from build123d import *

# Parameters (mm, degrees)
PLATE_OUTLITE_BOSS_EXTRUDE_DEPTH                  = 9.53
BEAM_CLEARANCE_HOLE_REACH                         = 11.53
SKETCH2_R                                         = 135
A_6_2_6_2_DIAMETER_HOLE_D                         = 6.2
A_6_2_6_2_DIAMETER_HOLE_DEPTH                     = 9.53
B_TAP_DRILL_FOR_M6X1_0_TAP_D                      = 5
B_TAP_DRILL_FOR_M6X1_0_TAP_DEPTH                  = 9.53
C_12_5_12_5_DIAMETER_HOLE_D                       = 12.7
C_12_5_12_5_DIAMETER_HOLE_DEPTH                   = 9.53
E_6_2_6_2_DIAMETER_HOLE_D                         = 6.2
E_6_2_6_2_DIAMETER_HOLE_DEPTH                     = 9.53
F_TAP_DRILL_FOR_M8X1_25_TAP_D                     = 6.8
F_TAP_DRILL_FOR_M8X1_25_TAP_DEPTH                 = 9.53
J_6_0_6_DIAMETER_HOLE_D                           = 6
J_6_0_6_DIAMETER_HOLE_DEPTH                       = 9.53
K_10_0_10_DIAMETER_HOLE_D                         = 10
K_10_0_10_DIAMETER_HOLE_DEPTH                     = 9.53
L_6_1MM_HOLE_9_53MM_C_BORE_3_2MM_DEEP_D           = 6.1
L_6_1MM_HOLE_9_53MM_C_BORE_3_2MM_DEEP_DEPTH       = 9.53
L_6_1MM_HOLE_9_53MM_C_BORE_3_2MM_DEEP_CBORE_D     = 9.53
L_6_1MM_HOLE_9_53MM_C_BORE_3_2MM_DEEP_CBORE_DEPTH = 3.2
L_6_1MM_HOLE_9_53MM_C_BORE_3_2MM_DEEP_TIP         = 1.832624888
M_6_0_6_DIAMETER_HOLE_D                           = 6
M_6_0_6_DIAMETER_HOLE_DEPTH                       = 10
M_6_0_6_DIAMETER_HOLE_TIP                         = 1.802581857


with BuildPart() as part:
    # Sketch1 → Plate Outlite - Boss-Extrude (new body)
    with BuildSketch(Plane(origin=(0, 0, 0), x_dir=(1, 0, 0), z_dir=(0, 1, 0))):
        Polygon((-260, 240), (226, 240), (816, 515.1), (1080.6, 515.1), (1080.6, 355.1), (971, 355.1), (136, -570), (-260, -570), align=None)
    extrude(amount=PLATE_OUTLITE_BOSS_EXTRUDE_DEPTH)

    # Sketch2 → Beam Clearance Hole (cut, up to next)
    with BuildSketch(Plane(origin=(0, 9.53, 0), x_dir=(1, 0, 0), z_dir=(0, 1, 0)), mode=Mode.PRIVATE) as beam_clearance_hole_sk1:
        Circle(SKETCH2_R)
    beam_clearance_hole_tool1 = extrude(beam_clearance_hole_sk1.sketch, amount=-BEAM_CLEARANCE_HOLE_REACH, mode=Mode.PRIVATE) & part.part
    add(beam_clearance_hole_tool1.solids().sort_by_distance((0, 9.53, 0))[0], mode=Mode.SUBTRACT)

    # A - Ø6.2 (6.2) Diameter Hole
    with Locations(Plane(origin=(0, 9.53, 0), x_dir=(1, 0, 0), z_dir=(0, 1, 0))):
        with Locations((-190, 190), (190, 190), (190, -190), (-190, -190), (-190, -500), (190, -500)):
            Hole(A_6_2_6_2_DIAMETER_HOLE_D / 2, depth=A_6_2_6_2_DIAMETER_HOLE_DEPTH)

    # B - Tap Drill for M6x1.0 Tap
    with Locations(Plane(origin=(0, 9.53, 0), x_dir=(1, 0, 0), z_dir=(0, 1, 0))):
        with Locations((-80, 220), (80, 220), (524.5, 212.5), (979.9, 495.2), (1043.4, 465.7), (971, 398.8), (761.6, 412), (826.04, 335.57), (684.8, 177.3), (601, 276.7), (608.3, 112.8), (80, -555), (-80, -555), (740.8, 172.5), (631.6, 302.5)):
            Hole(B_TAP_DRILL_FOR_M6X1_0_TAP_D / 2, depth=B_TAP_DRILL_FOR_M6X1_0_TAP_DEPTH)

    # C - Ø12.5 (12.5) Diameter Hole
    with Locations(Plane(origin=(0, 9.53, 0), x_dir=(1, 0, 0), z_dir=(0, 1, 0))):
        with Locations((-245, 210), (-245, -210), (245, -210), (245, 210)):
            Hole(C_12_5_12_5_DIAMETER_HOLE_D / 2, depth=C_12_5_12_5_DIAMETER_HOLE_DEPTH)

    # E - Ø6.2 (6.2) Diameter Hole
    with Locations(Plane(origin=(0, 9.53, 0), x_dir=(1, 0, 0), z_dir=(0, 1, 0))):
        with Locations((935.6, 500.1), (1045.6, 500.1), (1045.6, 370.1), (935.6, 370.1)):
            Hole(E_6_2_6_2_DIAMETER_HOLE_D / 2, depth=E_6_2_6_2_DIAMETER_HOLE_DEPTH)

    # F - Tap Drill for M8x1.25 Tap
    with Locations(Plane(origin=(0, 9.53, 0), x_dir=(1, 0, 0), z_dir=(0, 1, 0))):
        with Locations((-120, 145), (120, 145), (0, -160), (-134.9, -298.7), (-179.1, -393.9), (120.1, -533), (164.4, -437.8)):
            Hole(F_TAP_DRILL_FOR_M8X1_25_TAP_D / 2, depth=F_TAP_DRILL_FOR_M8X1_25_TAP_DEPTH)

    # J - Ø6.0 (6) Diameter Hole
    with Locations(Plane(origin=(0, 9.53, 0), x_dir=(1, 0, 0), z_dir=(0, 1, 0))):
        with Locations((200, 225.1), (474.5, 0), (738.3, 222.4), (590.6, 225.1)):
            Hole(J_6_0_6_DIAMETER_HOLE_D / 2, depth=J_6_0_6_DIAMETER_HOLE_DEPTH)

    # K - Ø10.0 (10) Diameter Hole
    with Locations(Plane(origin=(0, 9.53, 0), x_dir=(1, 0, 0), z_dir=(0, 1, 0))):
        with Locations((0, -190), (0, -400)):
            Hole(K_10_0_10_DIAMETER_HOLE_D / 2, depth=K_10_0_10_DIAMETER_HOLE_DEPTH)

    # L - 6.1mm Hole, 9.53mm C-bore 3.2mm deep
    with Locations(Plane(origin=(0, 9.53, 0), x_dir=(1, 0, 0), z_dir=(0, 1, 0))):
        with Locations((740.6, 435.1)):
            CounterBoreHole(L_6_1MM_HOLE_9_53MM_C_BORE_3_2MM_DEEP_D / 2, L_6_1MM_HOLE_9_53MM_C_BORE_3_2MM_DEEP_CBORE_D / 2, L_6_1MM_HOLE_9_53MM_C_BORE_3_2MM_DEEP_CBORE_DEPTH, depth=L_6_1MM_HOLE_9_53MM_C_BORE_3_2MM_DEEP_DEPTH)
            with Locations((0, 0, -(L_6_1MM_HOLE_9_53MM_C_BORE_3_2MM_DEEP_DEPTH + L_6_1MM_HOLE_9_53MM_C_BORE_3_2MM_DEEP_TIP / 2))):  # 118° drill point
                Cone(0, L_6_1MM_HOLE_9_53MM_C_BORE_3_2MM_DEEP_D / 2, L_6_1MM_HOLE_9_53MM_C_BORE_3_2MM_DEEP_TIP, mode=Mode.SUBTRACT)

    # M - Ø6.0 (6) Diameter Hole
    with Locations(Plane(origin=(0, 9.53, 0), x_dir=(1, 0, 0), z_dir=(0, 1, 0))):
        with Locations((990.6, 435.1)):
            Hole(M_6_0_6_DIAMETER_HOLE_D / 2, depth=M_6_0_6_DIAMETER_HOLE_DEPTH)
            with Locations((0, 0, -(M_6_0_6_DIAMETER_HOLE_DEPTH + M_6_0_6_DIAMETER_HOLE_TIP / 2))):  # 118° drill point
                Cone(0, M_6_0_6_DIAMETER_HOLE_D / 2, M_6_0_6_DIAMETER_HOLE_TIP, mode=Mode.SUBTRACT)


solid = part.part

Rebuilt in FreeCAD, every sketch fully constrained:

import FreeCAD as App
import Part
import Sketcher
from FreeCAD import Vector
Q = App.Units.Quantity

doc = App.newDocument("Part")
body = doc.addObject("PartDesign::Body", "Body")

sketch1 = body.newObject("Sketcher::SketchObject", "Sketch")
sketch1.AttachmentSupport = (doc.getObject("XZ_Plane"), [""])
sketch1.MapMode = "FlatFace"
sketch1.addGeometry([
    Part.LineSegment(Vector(226, -240, 0), Vector(-260, -240, 0)),
    Part.LineSegment(Vector(-260, -240, 0), Vector(-260, 570, 0)),
    Part.LineSegment(Vector(-260, 570, 0), Vector(136, 570, 0)),
    Part.LineSegment(Vector(136, 570, 0), Vector(971, -355.1, 0)),
    Part.LineSegment(Vector(971, -355.1, 0), Vector(1080.6, -355.1, 0)),
    Part.LineSegment(Vector(1080.6, -355.1, 0), Vector(1080.6, -515.1, 0)),
    Part.LineSegment(Vector(1080.6, -515.1, 0), Vector(816, -515.1, 0)),
    Part.LineSegment(Vector(816, -515.1, 0), Vector(226, -240, 0)),
], False)
sketch1.addConstraint([
    Sketcher.Constraint("Coincident", 0, 2, 1, 1),
    Sketcher.Constraint("Coincident", 1, 2, 2, 1),
    Sketcher.Constraint("Coincident", 2, 2, 3, 1),
    Sketcher.Constraint("Coincident", 3, 2, 4, 1),
    Sketcher.Constraint("Coincident", 4, 2, 5, 1),
    Sketcher.Constraint("Coincident", 5, 2, 6, 1),
    Sketcher.Constraint("Coincident", 6, 2, 7, 1),
    Sketcher.Constraint("Coincident", 7, 2, 0, 1),
    Sketcher.Constraint("Horizontal", 0),
    Sketcher.Constraint("Vertical", 1),
    Sketcher.Constraint("Horizontal", 2),
    Sketcher.Constraint("Horizontal", 4),
    Sketcher.Constraint("Vertical", 5),
    Sketcher.Constraint("Horizontal", 6),
    Sketcher.Constraint("DistanceX", 0, 2, 0, 1, Q("486 mm")),
    Sketcher.Constraint("DistanceX", 2, 1, 2, 2, Q("396 mm")),
    Sketcher.Constraint("DistanceY", 1, 1, 1, 2, Q("810 mm")),
    Sketcher.Constraint("DistanceY", 5, 2, 5, 1, Q("160 mm")),
    Sketcher.Constraint("DistanceX", 4, 1, 4, 2, Q("109.6 mm")),
    Sketcher.Constraint("DistanceX", 6, 2, 6, 1, Q("264.6 mm")),
    Sketcher.Constraint("DistanceX", 0, 2, -1, 1, Q("260 mm")),
    Sketcher.Constraint("DistanceY", 0, 2, -1, 1, Q("240 mm")),
    Sketcher.Constraint("DistanceX", -1, 1, 3, 2, Q("971 mm")),
    Sketcher.Constraint("DistanceY", 3, 2, -1, 1, Q("355.1 mm")),
])
pad1 = body.newObject("PartDesign::Pad", "Pad")
pad1.Profile = sketch1
pad1.Length = 9.53
pad1.Reversed = True

sketch2 = body.newObject("Sketcher::SketchObject", "Sketch001")
sketch2.AttachmentSupport = (doc.getObject("XZ_Plane"), [""])
sketch2.MapMode = "FlatFace"
sketch2.AttachmentOffset = App.Placement(Vector(0, 0, -9.53), App.Rotation())
sketch2.addGeometry(Part.Circle(Vector(0, 0, 0), Vector(0, 0, 1), 135), False)
sketch2.addConstraint([
    Sketcher.Constraint("Coincident", 0, 3, -1, 1),
    Sketcher.Constraint("Diameter", 0, Q("270 mm")),
])
pocket1 = body.newObject("PartDesign::Pocket", "Pocket")
pocket1.Profile = sketch2
pocket1.Type = "UpToFirst"
pocket1.Reversed = True

sketch3 = body.newObject("Sketcher::SketchObject", "Sketch002")
sketch3.AttachmentSupport = (doc.getObject("XZ_Plane"), [""])
sketch3.MapMode = "FlatFace"
sketch3.AttachmentOffset = App.Placement(Vector(0, 0, -9.53), App.Rotation())
sketch3.addGeometry([
    Part.Circle(Vector(-190, -190, 0), Vector(0, 0, 1), 3.1),
    Part.Circle(Vector(190, -190, 0), Vector(0, 0, 1), 3.1),
    Part.Circle(Vector(190, 190, 0), Vector(0, 0, 1), 3.1),
    Part.Circle(Vector(-190, 190, 0), Vector(0, 0, 1), 3.1),
    Part.Circle(Vector(-190, 500, 0), Vector(0, 0, 1), 3.1),
    Part.Circle(Vector(190, 500, 0), Vector(0, 0, 1), 3.1),
], False)
sketch3.addConstraint([
    Sketcher.Constraint("Equal", 0, 1),
    Sketcher.Constraint("Equal", 1, 2),
    Sketcher.Constraint("Equal", 2, 3),
    Sketcher.Constraint("Equal", 3, 4),
    Sketcher.Constraint("Equal", 4, 5),
    Sketcher.Constraint("Symmetric", 0, 3, 2, 3, -1, 1),
    Sketcher.Constraint("Symmetric", 1, 3, 3, 3, -1, 1),
    Sketcher.Constraint("Symmetric", 0, 3, 1, 3, -2),
    Sketcher.Constraint("Symmetric", 4, 3, 5, 3, -2),
    Sketcher.Constraint("Vertical", 3, 3, 4, 3),
    Sketcher.Constraint("Diameter", 0, Q("6.2 mm")),
    Sketcher.Constraint("DistanceX", 0, 3, -1, 1, Q("190 mm")),
    Sketcher.Constraint("DistanceY", 0, 3, -1, 1, Q("190 mm")),
    Sketcher.Constraint("DistanceY", -1, 1, 4, 3, Q("500 mm")),
])
doc.recompute()
hole = body.newObject("PartDesign::Hole", "Hole")
hole.Profile = sketch3
hole.ThreadType = "None"
hole.Diameter = 6.2
hole.DepthType = "Dimension"
hole.Depth = 9.53
hole.DrillPoint = "Flat"
hole.Reversed = True

sketch4 = body.newObject("Sketcher::SketchObject", "Sketch003")
sketch4.AttachmentSupport = (doc.getObject("XZ_Plane"), [""])
sketch4.MapMode = "FlatFace"
sketch4.AttachmentOffset = App.Placement(Vector(0, 0, -9.53), App.Rotation())
sketch4.addGeometry([
    Part.Circle(Vector(-80, -220, 0), Vector(0, 0, 1), 2.5),
    Part.Circle(Vector(80, -220, 0), Vector(0, 0, 1), 2.5),
    Part.Circle(Vector(524.5, -212.5, 0), Vector(0, 0, 1), 2.5),
    Part.Circle(Vector(979.9, -495.2, 0), Vector(0, 0, 1), 2.5),
    Part.Circle(Vector(1043.4, -465.7, 0), Vector(0, 0, 1), 2.5),
    Part.Circle(Vector(971, -398.8, 0), Vector(0, 0, 1), 2.5),
    Part.Circle(Vector(761.6, -412, 0), Vector(0, 0, 1), 2.5),
    Part.Circle(Vector(826.04, -335.57, 0), Vector(0, 0, 1), 2.5),
    Part.Circle(Vector(684.8, -177.3, 0), Vector(0, 0, 1), 2.5),
    Part.Circle(Vector(601, -276.7, 0), Vector(0, 0, 1), 2.5),
    Part.Circle(Vector(608.3, -112.8, 0), Vector(0, 0, 1), 2.5),
    Part.Circle(Vector(80, 555, 0), Vector(0, 0, 1), 2.5),
    Part.Circle(Vector(-80, 555, 0), Vector(0, 0, 1), 2.5),
    Part.Circle(Vector(740.8, -172.5, 0), Vector(0, 0, 1), 2.5),
    Part.Circle(Vector(631.6, -302.5, 0), Vector(0, 0, 1), 2.5),
], False)
sketch4.addConstraint([
    Sketcher.Constraint("Equal", 0, 1),
    Sketcher.Constraint("Equal", 1, 2),
    Sketcher.Constraint("Equal", 2, 3),
    Sketcher.Constraint("Equal", 3, 4),
    Sketcher.Constraint("Equal", 4, 5),
    Sketcher.Constraint("Equal", 5, 6),
    Sketcher.Constraint("Equal", 6, 7),
    Sketcher.Constraint("Equal", 7, 8),
    Sketcher.Constraint("Equal", 8, 9),
    Sketcher.Constraint("Equal", 9, 10),
    Sketcher.Constraint("Equal", 10, 11),
    Sketcher.Constraint("Equal", 11, 12),
    Sketcher.Constraint("Equal", 12, 13),
    Sketcher.Constraint("Equal", 13, 14),
    Sketcher.Constraint("Symmetric", 0, 3, 1, 3, -2),
    Sketcher.Constraint("Symmetric", 11, 3, 12, 3, -2),
    Sketcher.Constraint("Vertical", 1, 3, 11, 3),
    Sketcher.Constraint("Diameter", 0, Q("5 mm")),
    Sketcher.Constraint("DistanceX", 0, 3, -1, 1, Q("80 mm")),
    Sketcher.Constraint("DistanceY", 0, 3, -1, 1, Q("220 mm")),
    Sketcher.Constraint("DistanceX", -1, 1, 5, 3, Q("971 mm")),
    Sketcher.Constraint("DistanceY", 6, 3, -1, 1, Q("412 mm")),
    Sketcher.Constraint("DistanceX", -1, 1, 9, 3, Q("601 mm")),
    Sketcher.Constraint("DistanceY", -1, 1, 11, 3, Q("555 mm")),
    Sketcher.Constraint("DistanceX", 8, 3, 13, 3, Q("56 mm")),
    Sketcher.Constraint("DistanceY", 2, 3, 13, 3, Q("40 mm")),
    Sketcher.Constraint("DistanceY", 14, 3, 2, 3, Q("90 mm")),
    Sketcher.Constraint("DistanceX", 14, 3, 6, 3, Q("130 mm")),
    Sketcher.Constraint("DistanceX", -1, 1, 2, 3, Q("524.5 mm")),
    Sketcher.Constraint("DistanceY", 2, 3, -1, 1, Q("212.5 mm")),
    Sketcher.Constraint("DistanceX", -1, 1, 3, 3, Q("979.9 mm")),
    Sketcher.Constraint("DistanceY", 3, 3, -1, 1, Q("495.2 mm")),
    Sketcher.Constraint("DistanceX", -1, 1, 4, 3, Q("1043.4 mm")),
    Sketcher.Constraint("DistanceY", 4, 3, -1, 1, Q("465.7 mm")),
    Sketcher.Constraint("DistanceY", 5, 3, -1, 1, Q("398.8 mm")),
    Sketcher.Constraint("DistanceX", -1, 1, 6, 3, Q("761.6 mm")),
    Sketcher.Constraint("DistanceX", -1, 1, 8, 3, Q("684.8 mm")),
    Sketcher.Constraint("DistanceY", 8, 3, -1, 1, Q("177.3 mm")),
    Sketcher.Constraint("DistanceY", 9, 3, -1, 1, Q("276.7 mm")),
    Sketcher.Constraint("DistanceX", -1, 1, 10, 3, Q("608.3 mm")),
    Sketcher.Constraint("DistanceY", 10, 3, -1, 1, Q("112.8 mm")),
    Sketcher.Constraint("DistanceX", -1, 1, 7, 3, Q("826.04 mm")),
    Sketcher.Constraint("DistanceY", 7, 3, -1, 1, Q("335.57 mm")),
])
doc.recompute()
hole2 = body.newObject("PartDesign::Hole", "Hole001")
hole2.Profile = sketch4
hole2.ThreadType = "None"
hole2.Diameter = 5
hole2.DepthType = "Dimension"
hole2.Depth = 9.53
hole2.DrillPoint = "Flat"
hole2.Reversed = True

sketch5 = body.newObject("Sketcher::SketchObject", "Sketch004")
sketch5.AttachmentSupport = (doc.getObject("XZ_Plane"), [""])
sketch5.MapMode = "FlatFace"
sketch5.AttachmentOffset = App.Placement(Vector(0, 0, -9.53), App.Rotation())
sketch5.addGeometry([
    Part.Circle(Vector(-245, -210, 0), Vector(0, 0, 1), 6.35),
    Part.Circle(Vector(-245, 210, 0), Vector(0, 0, 1), 6.35),
    Part.Circle(Vector(245, 210, 0), Vector(0, 0, 1), 6.35),
    Part.Circle(Vector(245, -210, 0), Vector(0, 0, 1), 6.35),
], False)
sketch5.addConstraint([
    Sketcher.Constraint("Equal", 0, 1),
    Sketcher.Constraint("Equal", 1, 2),
    Sketcher.Constraint("Equal", 2, 3),
    Sketcher.Constraint("Symmetric", 0, 3, 2, 3, -1, 1),
    Sketcher.Constraint("Symmetric", 1, 3, 3, 3, -1, 1),
    Sketcher.Constraint("Symmetric", 1, 3, 2, 3, -2),
    Sketcher.Constraint("Diameter", 0, Q("12.7 mm")),
    Sketcher.Constraint("DistanceX", 0, 3, -1, 1, Q("245 mm")),
    Sketcher.Constraint("DistanceY", 0, 3, -1, 1, Q("210 mm")),
])
doc.recompute()
hole3 = body.newObject("PartDesign::Hole", "Hole002")
hole3.Profile = sketch5
hole3.ThreadType = "None"
hole3.Diameter = 12.7
hole3.DepthType = "Dimension"
hole3.Depth = 9.53
hole3.DrillPoint = "Flat"
hole3.Reversed = True

sketch6 = body.newObject("Sketcher::SketchObject", "Sketch005")
sketch6.AttachmentSupport = (doc.getObject("XZ_Plane"), [""])
sketch6.MapMode = "FlatFace"
sketch6.AttachmentOffset = App.Placement(Vector(0, 0, -9.53), App.Rotation())
sketch6.addGeometry([
    Part.Circle(Vector(935.6, -500.1, 0), Vector(0, 0, 1), 3.1),
    Part.Circle(Vector(1045.6, -500.1, 0), Vector(0, 0, 1), 3.1),
    Part.Circle(Vector(1045.6, -370.1, 0), Vector(0, 0, 1), 3.1),
    Part.Circle(Vector(935.6, -370.1, 0), Vector(0, 0, 1), 3.1),
], False)
sketch6.addConstraint([
    Sketcher.Constraint("Equal", 0, 1),
    Sketcher.Constraint("Equal", 1, 2),
    Sketcher.Constraint("Equal", 2, 3),
    Sketcher.Constraint("Horizontal", 0, 3, 1, 3),
    Sketcher.Constraint("Horizontal", 2, 3, 3, 3),
    Sketcher.Constraint("Vertical", 1, 3, 2, 3),
    Sketcher.Constraint("Vertical", 0, 3, 3, 3),
    Sketcher.Constraint("Diameter", 0, Q("6.2 mm")),
    Sketcher.Constraint("DistanceX", 0, 3, 1, 3, Q("110 mm")),
    Sketcher.Constraint("DistanceY", 1, 3, 2, 3, Q("130 mm")),
    Sketcher.Constraint("DistanceX", -1, 1, 0, 3, Q("935.6 mm")),
    Sketcher.Constraint("DistanceY", 0, 3, -1, 1, Q("500.1 mm")),
])
doc.recompute()
hole4 = body.newObject("PartDesign::Hole", "Hole003")
hole4.Profile = sketch6
hole4.ThreadType = "None"
hole4.Diameter = 6.2
hole4.DepthType = "Dimension"
hole4.Depth = 9.53
hole4.DrillPoint = "Flat"
hole4.Reversed = True

sketch7 = body.newObject("Sketcher::SketchObject", "Sketch006")
sketch7.AttachmentSupport = (doc.getObject("XZ_Plane"), [""])
sketch7.MapMode = "FlatFace"
sketch7.AttachmentOffset = App.Placement(Vector(0, 0, -9.53), App.Rotation())
sketch7.addGeometry([
    Part.Circle(Vector(-120, -145, 0), Vector(0, 0, 1), 3.4),
    Part.Circle(Vector(120, -145, 0), Vector(0, 0, 1), 3.4),
    Part.Circle(Vector(0, 160, 0), Vector(0, 0, 1), 3.4),
    Part.Circle(Vector(-134.9, 298.7, 0), Vector(0, 0, 1), 3.4),
    Part.Circle(Vector(-179.1, 393.9, 0), Vector(0, 0, 1), 3.4),
    Part.Circle(Vector(120.1, 533, 0), Vector(0, 0, 1), 3.4),
    Part.Circle(Vector(164.4, 437.8, 0), Vector(0, 0, 1), 3.4),
], False)
sketch7.addConstraint([
    Sketcher.Constraint("Equal", 0, 1),
    Sketcher.Constraint("Equal", 1, 2),
    Sketcher.Constraint("Equal", 2, 3),
    Sketcher.Constraint("Equal", 3, 4),
    Sketcher.Constraint("Equal", 4, 5),
    Sketcher.Constraint("Equal", 5, 6),
    Sketcher.Constraint("Symmetric", 0, 3, 1, 3, -2),
    Sketcher.Constraint("PointOnObject", 2, 3, -2),
    Sketcher.Constraint("Diameter", 0, Q("6.8 mm")),
    Sketcher.Constraint("DistanceX", 0, 3, -1, 1, Q("120 mm")),
    Sketcher.Constraint("DistanceY", 0, 3, -1, 1, Q("145 mm")),
    Sketcher.Constraint("DistanceY", -1, 1, 2, 3, Q("160 mm")),
    Sketcher.Constraint("DistanceY", -1, 1, 5, 3, Q("533 mm")),
    Sketcher.Constraint("DistanceX", 3, 3, 5, 3, Q("255 mm")),
    Sketcher.Constraint("DistanceX", 3, 3, -1, 1, Q("134.9 mm")),
    Sketcher.Constraint("DistanceY", -1, 1, 3, 3, Q("298.7 mm")),
    Sketcher.Constraint("DistanceX", 4, 3, -1, 1, Q("179.1 mm")),
    Sketcher.Constraint("DistanceY", -1, 1, 4, 3, Q("393.9 mm")),
    Sketcher.Constraint("DistanceX", -1, 1, 6, 3, Q("164.4 mm")),
    Sketcher.Constraint("DistanceY", -1, 1, 6, 3, Q("437.8 mm")),
])
doc.recompute()
hole5 = body.newObject("PartDesign::Hole", "Hole004")
hole5.Profile = sketch7
hole5.ThreadType = "None"
hole5.Diameter = 6.8
hole5.DepthType = "Dimension"
hole5.Depth = 9.53
hole5.DrillPoint = "Flat"
hole5.Reversed = True

sketch8 = body.newObject("Sketcher::SketchObject", "Sketch007")
sketch8.AttachmentSupport = (doc.getObject("XZ_Plane"), [""])
sketch8.MapMode = "FlatFace"
sketch8.AttachmentOffset = App.Placement(Vector(0, 0, -9.53), App.Rotation())
sketch8.addGeometry([
    Part.Circle(Vector(200, -225.1, 0), Vector(0, 0, 1), 3),
    Part.Circle(Vector(474.5, 0, 0), Vector(0, 0, 1), 3),
    Part.Circle(Vector(738.3, -222.4, 0), Vector(0, 0, 1), 3),
    Part.Circle(Vector(590.6, -225.1, 0), Vector(0, 0, 1), 3),
], False)
sketch8.addConstraint([
    Sketcher.Constraint("Equal", 0, 1),
    Sketcher.Constraint("Equal", 1, 2),
    Sketcher.Constraint("Equal", 2, 3),
    Sketcher.Constraint("PointOnObject", 1, 3, -1),
    Sketcher.Constraint("Horizontal", 0, 3, 3, 3),
    Sketcher.Constraint("Diameter", 0, Q("6 mm")),
    Sketcher.Constraint("DistanceX", -1, 1, 0, 3, Q("200 mm")),
    Sketcher.Constraint("DistanceY", 0, 3, -1, 1, Q("225.1 mm")),
    Sketcher.Constraint("DistanceX", -1, 1, 1, 3, Q("474.5 mm")),
    Sketcher.Constraint("DistanceX", -1, 1, 2, 3, Q("738.3 mm")),
    Sketcher.Constraint("DistanceY", 2, 3, -1, 1, Q("222.4 mm")),
    Sketcher.Constraint("DistanceX", -1, 1, 3, 3, Q("590.6 mm")),
])
doc.recompute()
hole6 = body.newObject("PartDesign::Hole", "Hole005")
hole6.Profile = sketch8
hole6.ThreadType = "None"
hole6.Diameter = 6
hole6.DepthType = "Dimension"
hole6.Depth = 9.53
hole6.DrillPoint = "Flat"
hole6.Reversed = True

sketch9 = body.newObject("Sketcher::SketchObject", "Sketch008")
sketch9.AttachmentSupport = (doc.getObject("XZ_Plane"), [""])
sketch9.MapMode = "FlatFace"
sketch9.AttachmentOffset = App.Placement(Vector(0, 0, -9.53), App.Rotation())
sketch9.addGeometry([
    Part.Circle(Vector(0, 190, 0), Vector(0, 0, 1), 5),
    Part.Circle(Vector(0, 400, 0), Vector(0, 0, 1), 5),
], False)
sketch9.addConstraint([
    Sketcher.Constraint("Equal", 0, 1),
    Sketcher.Constraint("PointOnObject", 0, 3, -2),
    Sketcher.Constraint("PointOnObject", 1, 3, -2),
    Sketcher.Constraint("Diameter", 0, Q("10 mm")),
    Sketcher.Constraint("DistanceY", -1, 1, 0, 3, Q("190 mm")),
    Sketcher.Constraint("DistanceY", -1, 1, 1, 3, Q("400 mm")),
])
doc.recompute()
hole7 = body.newObject("PartDesign::Hole", "Hole006")
hole7.Profile = sketch9
hole7.ThreadType = "None"
hole7.Diameter = 10
hole7.DepthType = "Dimension"
hole7.Depth = 9.53
hole7.DrillPoint = "Flat"
hole7.Reversed = True

sketch10 = body.newObject("Sketcher::SketchObject", "Sketch009")
sketch10.AttachmentSupport = (doc.getObject("XZ_Plane"), [""])
sketch10.MapMode = "FlatFace"
sketch10.AttachmentOffset = App.Placement(Vector(0, 0, -9.53), App.Rotation())
sketch10.addGeometry(Part.Circle(Vector(740.6, -435.1, 0), Vector(0, 0, 1), 3.05), False)
sketch10.addConstraint([
    Sketcher.Constraint("Diameter", 0, Q("6.1 mm")),
    Sketcher.Constraint("DistanceX", -1, 1, 0, 3, Q("740.6 mm")),
    Sketcher.Constraint("DistanceY", 0, 3, -1, 1, Q("435.1 mm")),
])
doc.recompute()
hole8 = body.newObject("PartDesign::Hole", "Hole007")
hole8.Profile = sketch10
hole8.ThreadType = "None"
hole8.Diameter = 6.1
hole8.DepthType = "Dimension"
hole8.Depth = 9.53
hole8.DrillPoint = "Angled"
hole8.DrillPointAngle = 118
hole8.HoleCutType = "Counterbore"
hole8.HoleCutDiameter = 9.53
hole8.HoleCutDepth = 3.2
hole8.Reversed = True

sketch11 = body.newObject("Sketcher::SketchObject", "Sketch010")
sketch11.AttachmentSupport = (doc.getObject("XZ_Plane"), [""])
sketch11.MapMode = "FlatFace"
sketch11.AttachmentOffset = App.Placement(Vector(0, 0, -9.53), App.Rotation())
sketch11.addGeometry(Part.Circle(Vector(990.6, -435.1, 0), Vector(0, 0, 1), 3), False)
sketch11.addConstraint([
    Sketcher.Constraint("Diameter", 0, Q("6 mm")),
    Sketcher.Constraint("DistanceX", -1, 1, 0, 3, Q("990.6 mm")),
    Sketcher.Constraint("DistanceY", 0, 3, -1, 1, Q("435.1 mm")),
])
doc.recompute()
hole9 = body.newObject("PartDesign::Hole", "Hole008")
hole9.Profile = sketch11
hole9.ThreadType = "None"
hole9.Diameter = 6
hole9.DepthType = "Dimension"
hole9.Depth = 10
hole9.DrillPoint = "Angled"
hole9.DrillPointAngle = 118
hole9.Reversed = True

doc.recompute()
